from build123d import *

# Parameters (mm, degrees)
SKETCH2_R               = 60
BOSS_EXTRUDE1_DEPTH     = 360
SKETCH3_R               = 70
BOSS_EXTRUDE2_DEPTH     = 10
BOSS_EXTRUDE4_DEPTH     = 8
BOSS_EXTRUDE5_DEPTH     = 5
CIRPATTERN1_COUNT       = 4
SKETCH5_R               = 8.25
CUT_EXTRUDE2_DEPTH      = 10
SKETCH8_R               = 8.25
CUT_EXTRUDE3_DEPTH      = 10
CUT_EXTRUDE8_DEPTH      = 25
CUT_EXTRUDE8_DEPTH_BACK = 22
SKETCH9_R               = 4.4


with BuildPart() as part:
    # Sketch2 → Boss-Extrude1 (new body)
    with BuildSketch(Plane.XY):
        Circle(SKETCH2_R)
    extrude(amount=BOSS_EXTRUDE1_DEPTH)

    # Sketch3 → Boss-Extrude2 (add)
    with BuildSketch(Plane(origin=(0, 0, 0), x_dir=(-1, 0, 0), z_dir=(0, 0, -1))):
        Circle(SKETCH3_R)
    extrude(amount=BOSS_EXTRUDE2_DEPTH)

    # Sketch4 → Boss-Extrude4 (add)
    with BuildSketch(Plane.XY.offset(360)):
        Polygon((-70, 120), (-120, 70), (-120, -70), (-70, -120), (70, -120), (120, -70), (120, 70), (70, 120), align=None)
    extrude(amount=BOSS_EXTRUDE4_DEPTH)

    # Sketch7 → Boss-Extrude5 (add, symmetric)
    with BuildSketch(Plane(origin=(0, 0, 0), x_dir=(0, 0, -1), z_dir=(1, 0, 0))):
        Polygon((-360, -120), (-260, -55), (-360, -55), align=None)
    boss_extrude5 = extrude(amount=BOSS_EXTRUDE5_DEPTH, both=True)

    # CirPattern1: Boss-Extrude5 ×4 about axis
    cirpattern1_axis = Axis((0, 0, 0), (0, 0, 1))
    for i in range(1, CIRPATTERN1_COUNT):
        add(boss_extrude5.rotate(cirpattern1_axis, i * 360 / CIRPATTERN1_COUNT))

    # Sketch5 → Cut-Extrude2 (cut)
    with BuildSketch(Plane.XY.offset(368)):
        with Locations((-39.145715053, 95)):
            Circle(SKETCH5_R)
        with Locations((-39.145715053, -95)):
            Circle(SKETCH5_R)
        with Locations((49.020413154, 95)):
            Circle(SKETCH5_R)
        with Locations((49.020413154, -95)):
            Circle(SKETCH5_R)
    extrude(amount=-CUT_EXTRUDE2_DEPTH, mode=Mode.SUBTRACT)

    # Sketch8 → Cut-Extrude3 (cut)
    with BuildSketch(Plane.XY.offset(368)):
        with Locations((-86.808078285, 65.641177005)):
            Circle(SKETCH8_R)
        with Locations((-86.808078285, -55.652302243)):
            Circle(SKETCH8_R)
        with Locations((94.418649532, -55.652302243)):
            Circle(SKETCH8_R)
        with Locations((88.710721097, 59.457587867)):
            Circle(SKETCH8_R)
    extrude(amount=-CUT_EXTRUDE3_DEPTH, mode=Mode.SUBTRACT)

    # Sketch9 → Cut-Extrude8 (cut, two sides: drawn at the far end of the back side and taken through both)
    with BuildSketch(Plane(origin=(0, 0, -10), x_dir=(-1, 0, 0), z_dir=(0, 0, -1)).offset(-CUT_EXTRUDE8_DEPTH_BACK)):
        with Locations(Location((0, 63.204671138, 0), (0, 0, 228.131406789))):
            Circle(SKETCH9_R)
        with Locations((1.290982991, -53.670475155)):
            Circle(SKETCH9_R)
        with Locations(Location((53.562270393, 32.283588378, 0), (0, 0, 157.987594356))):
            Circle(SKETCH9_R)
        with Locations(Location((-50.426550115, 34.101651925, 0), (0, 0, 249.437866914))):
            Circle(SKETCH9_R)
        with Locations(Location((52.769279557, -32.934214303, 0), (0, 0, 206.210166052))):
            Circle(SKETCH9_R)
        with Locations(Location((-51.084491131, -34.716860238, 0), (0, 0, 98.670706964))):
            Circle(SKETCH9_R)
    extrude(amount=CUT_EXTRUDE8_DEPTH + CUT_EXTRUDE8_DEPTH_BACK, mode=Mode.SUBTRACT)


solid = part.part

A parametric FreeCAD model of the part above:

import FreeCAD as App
import Part
import Sketcher


def add_polygon(sketch, points):
    """Adds a closed chain of lines whose ends are joined by coincident constraints."""
    first, n = sketch.GeometryCount, len(points)
    for a, b in zip(points, points[1:] + points[:1]):
        sketch.addGeometry(Part.LineSegment(App.Vector(*a, 0), App.Vector(*b, 0)), False)
    for i in range(n):
        sketch.addConstraint(Sketcher.Constraint("Coincident", first + i, 2, first + (i + 1) % n, 1))

doc = App.newDocument("Part")
body = doc.addObject("PartDesign::Body", "Body")

# Sketch on XY plane
sketch1 = body.newObject("Sketcher::SketchObject", "Sketch")
sketch1.AttachmentSupport = (doc.getObject("XY_Plane"), [""])
sketch1.MapMode = "FlatFace"
sketch1.addGeometry(Part.Circle(App.Vector(0, 0, 0), App.Vector(0, 0, 1), 60), False)
sketch1.addConstraint([
    Sketcher.Constraint("Coincident", 0, 3, -1, 1),
    Sketcher.Constraint("Diameter", 0, 120.0),
])
pad1 = body.newObject("PartDesign::Pad", "Pad")
pad1.Profile = sketch1
pad1.Length = 360

# Sketch on XY plane
sketch2 = body.newObject("Sketcher::SketchObject", "Sketch001")
sketch2.AttachmentSupport = (doc.getObject("XY_Plane"), [""])
sketch2.MapMode = "FlatFace"
sketch2.addGeometry(Part.Circle(App.Vector(0, 0, 0), App.Vector(0, 0, 1), 70), False)
sketch2.addConstraint([
    Sketcher.Constraint("Coincident", 0, 3, -1, 1),
    Sketcher.Constraint("Diameter", 0, 140.0),
])
pad2 = body.newObject("PartDesign::Pad", "Pad001")
pad2.Profile = sketch2
pad2.Length = 10
pad2.Reversed = True

# Sketch on XY plane
sketch3 = body.newObject("Sketcher::SketchObject", "Sketch002")
sketch3.AttachmentSupport = (doc.getObject("XY_Plane"), [""])
sketch3.MapMode = "FlatFace"
sketch3.AttachmentOffset = App.Placement(App.Vector(0, 0, 360), App.Rotation())
add_polygon(sketch3, [(-70, 120), (-120, 70), (-120, -70), (-70, -120), (70, -120), (120, -70), (120, 70), (70, 120)])  # lines 0-7
sketch3.addConstraint([
    Sketcher.Constraint("Vertical", 1),
    Sketcher.Constraint("Horizontal", 3),
    Sketcher.Constraint("Vertical", 5),
    Sketcher.Constraint("Horizontal", 7),
    Sketcher.Constraint("Symmetric", 0, 2, 4, 2, -1, 1),
    Sketcher.Constraint("Symmetric", 2, 2, 6, 2, -1, 1),
    Sketcher.Constraint("Perpendicular", 0, 2),
    Sketcher.Constraint("Perpendicular", 2, 4),
    Sketcher.Constraint("Perpendicular", 4, 6),
    Sketcher.Constraint("Horizontal", 1, 2, 4, 2),
    Sketcher.Constraint("Vertical", 3, 2, 6, 2),
    Sketcher.Constraint("Equal", 7, 1),
    Sketcher.Constraint("DistanceX", 3, 1, 3, 2, 140.0),
    Sketcher.Constraint("DistanceX", 0, 2, -1, 1, 120.0),
])
pad3 = body.newObject("PartDesign::Pad", "Pad002")
pad3.Profile = sketch3
pad3.Length = 8

# Sketch on YZ plane
sketch4 = body.newObject("Sketcher::SketchObject", "Sketch003")
sketch4.AttachmentSupport = (doc.getObject("YZ_Plane"), [""])
sketch4.MapMode = "FlatFace"
add_polygon(sketch4, [(-120, 360), (-55, 260), (-55, 360)])  # lines 0-2
sketch4.addConstraint([
    Sketcher.Constraint("Vertical", 1),
    Sketcher.Constraint("Horizontal", 2),
    Sketcher.Constraint("DistanceX", 2, 2, 2, 1, 65.0),
    Sketcher.Constraint("DistanceY", 1, 1, 1, 2, 100.0),
    Sketcher.Constraint("DistanceX", 0, 2, -1, 1, 55.0),
    Sketcher.Constraint("DistanceY", -1, 1, 0, 2, 260.0),
])
pad4 = body.newObject("PartDesign::Pad", "Pad003")
pad4.Profile = sketch4
pad4.Length = 10
pad4.Midplane = True
doc.recompute()

polarpattern = body.newObject("PartDesign::PolarPattern", "PolarPattern")
polarpattern.Originals = [pad4]
polarpattern.Axis = (doc.getObject("Z_Axis"), [""])
polarpattern.Angle = 360
polarpattern.Occurrences = 4
body.Tip = polarpattern

# Sketch on XY plane
sketch5 = body.newObject("Sketcher::SketchObject", "Sketch004")
sketch5.AttachmentSupport = (doc.getObject("XY_Plane"), [""])
sketch5.MapMode = "FlatFace"
sketch5.AttachmentOffset = App.Placement(App.Vector(0, 0, 368), App.Rotation())
sketch5.addGeometry([
    Part.Circle(App.Vector(-39, 95, 0), App.Vector(0, 0, 1), 8),
    Part.Circle(App.Vector(-39, -95, 0), App.Vector(0, 0, 1), 8),
    Part.Circle(App.Vector(49, 95, 0), App.Vector(0, 0, 1), 8),
    Part.Circle(App.Vector(49, -95, 0), App.Vector(0, 0, 1), 8),
], False)
sketch5.addConstraint([
    Sketcher.Constraint("Equal", 0, 1),
    Sketcher.Constraint("Equal", 1, 2),
    Sketcher.Constraint("Equal", 2, 3),
    Sketcher.Constraint("Symmetric", 0, 3, 1, 3, -1),
    Sketcher.Constraint("Symmetric", 2, 3, 3, 3, -1),
    Sketcher.Constraint("Horizontal", 0, 3, 2, 3),
    Sketcher.Constraint("Diameter", 0, 16.5),
    Sketcher.Constraint("DistanceY", -1, 1, 0, 3, 95.0),
    Sketcher.Constraint("DistanceX", 0, 3, 2, 3, 88.166128),
    Sketcher.Constraint("DistanceX", 0, 3, -1, 1, 39.145715),
])
pocket1 = body.newObject("PartDesign::Pocket", "Pocket")
pocket1.Profile = sketch5
pocket1.Length = 10

# Sketch on XY plane
sketch6 = body.newObject("Sketcher::SketchObject", "Sketch005")
sketch6.AttachmentSupport = (doc.getObject("XY_Plane"), [""])
sketch6.MapMode = "FlatFace"
sketch6.AttachmentOffset = App.Placement(App.Vector(0, 0, 368), App.Rotation())
sketch6.addGeometry([
    Part.Circle(App.Vector(-87, 66, 0), App.Vector(0, 0, 1), 8),
    Part.Circle(App.Vector(-87, -56, 0), App.Vector(0, 0, 1), 8),
    Part.Circle(App.Vector(94, -56, 0), App.Vector(0, 0, 1), 8),
    Part.Circle(App.Vector(89, 59, 0), App.Vector(0, 0, 1), 8),
], False)
sketch6.addConstraint([
    Sketcher.Constraint("Equal", 0, 1),
    Sketcher.Constraint("Equal", 1, 2),
    Sketcher.Constraint("Equal", 2, 3),
    Sketcher.Constraint("Horizontal", 1, 3, 2, 3),
    Sketcher.Constraint("Vertical", 0, 3, 1, 3),
    Sketcher.Constraint("Diameter", 0, 16.5),
    Sketcher.Constraint("DistanceX", 0, 3, 3, 3, 175.518799),
    Sketcher.Constraint("DistanceX", 0, 3, -1, 1, 86.808078),
    Sketcher.Constraint("DistanceX", -1, 1, 2, 3, 94.41865),
    Sketcher.Constraint("DistanceY", 1, 3, 0, 3, 121.293479),
    Sketcher.Constraint("DistanceY", 2, 3, 3, 3, 115.10989),
    Sketcher.Constraint("DistanceY", -1, 1, 0, 3, 65.641177),
])
pocket2 = body.newObject("PartDesign::Pocket", "Pocket001")
pocket2.Profile = sketch6
pocket2.Length = 10

# Sketch on XY plane
sketch7 = body.newObject("Sketcher::SketchObject", "Sketch006")
sketch7.AttachmentSupport = (doc.getObject("XY_Plane"), [""])
sketch7.MapMode = "FlatFace"
sketch7.AttachmentOffset = App.Placement(App.Vector(0, 0, -10), App.Rotation())
sketch7.addGeometry([
    Part.Circle(App.Vector(0, 63.2, 0), App.Vector(0, 0, 1), 4.4),  # 0
    Part.Circle(App.Vector(-1.3, -53.7, 0), App.Vector(0, 0, 1), 4.4),  # 1
    Part.Circle(App.Vector(-53.6, 32.3, 0), App.Vector(0, 0, 1), 4.4),  # 2
    Part.Circle(App.Vector(50.4, 34.1, 0), App.Vector(0, 0, 1), 4.4),  # 3
    Part.Circle(App.Vector(-52.8, -32.9, 0), App.Vector(0, 0, 1), 4.4),  # 4
    Part.Circle(App.Vector(51.1, -34.7, 0), App.Vector(0, 0, 1), 4.4),  # 5
], False)
sketch7.addConstraint([
    Sketcher.Constraint("Equal", 0, 1),
    Sketcher.Constraint("Equal", 1, 2),
    Sketcher.Constraint("Equal", 2, 3),
    Sketcher.Constraint("Equal", 3, 4),
    Sketcher.Constraint("Equal", 4, 5),
    Sketcher.Constraint("PointOnObject", 0, 3, -2),
    Sketcher.Constraint("Diameter", 0, 8.8),
    Sketcher.Constraint("DistanceY", -1, 1, 0, 3, 63.204671),
    Sketcher.Constraint("DistanceX", 2, 3, -1, 1, 53.56227),
    Sketcher.Constraint("DistanceY", -1, 1, 2, 3, 32.283588),
    Sketcher.Constraint("DistanceX", -1, 1, 3, 3, 50.42655),
    Sketcher.Constraint("DistanceY", -1, 1, 3, 3, 34.101652),
    Sketcher.Constraint("DistanceX", 4, 3, -1, 1, 52.76928),
    Sketcher.Constraint("DistanceX", -1, 1, 5, 3, 51.084491),
    Sketcher.Constraint("DistanceY", 5, 3, -1, 1, 34.71686),
    Sketcher.Constraint("DistanceY", 1, 3, 4, 3, 20.736261),
    Sketcher.Constraint("DistanceX", 1, 3, -1, 1, 1.290983),
    Sketcher.Constraint("DistanceY", 1, 3, -1, 1, 53.670475),
])
pocket3 = body.newObject("PartDesign::Pocket", "Pocket002")
pocket3.Profile = sketch7
pocket3.Type = "TwoLengths"
pocket3.Length = 25
pocket3.Length2 = 22

doc.recompute()
